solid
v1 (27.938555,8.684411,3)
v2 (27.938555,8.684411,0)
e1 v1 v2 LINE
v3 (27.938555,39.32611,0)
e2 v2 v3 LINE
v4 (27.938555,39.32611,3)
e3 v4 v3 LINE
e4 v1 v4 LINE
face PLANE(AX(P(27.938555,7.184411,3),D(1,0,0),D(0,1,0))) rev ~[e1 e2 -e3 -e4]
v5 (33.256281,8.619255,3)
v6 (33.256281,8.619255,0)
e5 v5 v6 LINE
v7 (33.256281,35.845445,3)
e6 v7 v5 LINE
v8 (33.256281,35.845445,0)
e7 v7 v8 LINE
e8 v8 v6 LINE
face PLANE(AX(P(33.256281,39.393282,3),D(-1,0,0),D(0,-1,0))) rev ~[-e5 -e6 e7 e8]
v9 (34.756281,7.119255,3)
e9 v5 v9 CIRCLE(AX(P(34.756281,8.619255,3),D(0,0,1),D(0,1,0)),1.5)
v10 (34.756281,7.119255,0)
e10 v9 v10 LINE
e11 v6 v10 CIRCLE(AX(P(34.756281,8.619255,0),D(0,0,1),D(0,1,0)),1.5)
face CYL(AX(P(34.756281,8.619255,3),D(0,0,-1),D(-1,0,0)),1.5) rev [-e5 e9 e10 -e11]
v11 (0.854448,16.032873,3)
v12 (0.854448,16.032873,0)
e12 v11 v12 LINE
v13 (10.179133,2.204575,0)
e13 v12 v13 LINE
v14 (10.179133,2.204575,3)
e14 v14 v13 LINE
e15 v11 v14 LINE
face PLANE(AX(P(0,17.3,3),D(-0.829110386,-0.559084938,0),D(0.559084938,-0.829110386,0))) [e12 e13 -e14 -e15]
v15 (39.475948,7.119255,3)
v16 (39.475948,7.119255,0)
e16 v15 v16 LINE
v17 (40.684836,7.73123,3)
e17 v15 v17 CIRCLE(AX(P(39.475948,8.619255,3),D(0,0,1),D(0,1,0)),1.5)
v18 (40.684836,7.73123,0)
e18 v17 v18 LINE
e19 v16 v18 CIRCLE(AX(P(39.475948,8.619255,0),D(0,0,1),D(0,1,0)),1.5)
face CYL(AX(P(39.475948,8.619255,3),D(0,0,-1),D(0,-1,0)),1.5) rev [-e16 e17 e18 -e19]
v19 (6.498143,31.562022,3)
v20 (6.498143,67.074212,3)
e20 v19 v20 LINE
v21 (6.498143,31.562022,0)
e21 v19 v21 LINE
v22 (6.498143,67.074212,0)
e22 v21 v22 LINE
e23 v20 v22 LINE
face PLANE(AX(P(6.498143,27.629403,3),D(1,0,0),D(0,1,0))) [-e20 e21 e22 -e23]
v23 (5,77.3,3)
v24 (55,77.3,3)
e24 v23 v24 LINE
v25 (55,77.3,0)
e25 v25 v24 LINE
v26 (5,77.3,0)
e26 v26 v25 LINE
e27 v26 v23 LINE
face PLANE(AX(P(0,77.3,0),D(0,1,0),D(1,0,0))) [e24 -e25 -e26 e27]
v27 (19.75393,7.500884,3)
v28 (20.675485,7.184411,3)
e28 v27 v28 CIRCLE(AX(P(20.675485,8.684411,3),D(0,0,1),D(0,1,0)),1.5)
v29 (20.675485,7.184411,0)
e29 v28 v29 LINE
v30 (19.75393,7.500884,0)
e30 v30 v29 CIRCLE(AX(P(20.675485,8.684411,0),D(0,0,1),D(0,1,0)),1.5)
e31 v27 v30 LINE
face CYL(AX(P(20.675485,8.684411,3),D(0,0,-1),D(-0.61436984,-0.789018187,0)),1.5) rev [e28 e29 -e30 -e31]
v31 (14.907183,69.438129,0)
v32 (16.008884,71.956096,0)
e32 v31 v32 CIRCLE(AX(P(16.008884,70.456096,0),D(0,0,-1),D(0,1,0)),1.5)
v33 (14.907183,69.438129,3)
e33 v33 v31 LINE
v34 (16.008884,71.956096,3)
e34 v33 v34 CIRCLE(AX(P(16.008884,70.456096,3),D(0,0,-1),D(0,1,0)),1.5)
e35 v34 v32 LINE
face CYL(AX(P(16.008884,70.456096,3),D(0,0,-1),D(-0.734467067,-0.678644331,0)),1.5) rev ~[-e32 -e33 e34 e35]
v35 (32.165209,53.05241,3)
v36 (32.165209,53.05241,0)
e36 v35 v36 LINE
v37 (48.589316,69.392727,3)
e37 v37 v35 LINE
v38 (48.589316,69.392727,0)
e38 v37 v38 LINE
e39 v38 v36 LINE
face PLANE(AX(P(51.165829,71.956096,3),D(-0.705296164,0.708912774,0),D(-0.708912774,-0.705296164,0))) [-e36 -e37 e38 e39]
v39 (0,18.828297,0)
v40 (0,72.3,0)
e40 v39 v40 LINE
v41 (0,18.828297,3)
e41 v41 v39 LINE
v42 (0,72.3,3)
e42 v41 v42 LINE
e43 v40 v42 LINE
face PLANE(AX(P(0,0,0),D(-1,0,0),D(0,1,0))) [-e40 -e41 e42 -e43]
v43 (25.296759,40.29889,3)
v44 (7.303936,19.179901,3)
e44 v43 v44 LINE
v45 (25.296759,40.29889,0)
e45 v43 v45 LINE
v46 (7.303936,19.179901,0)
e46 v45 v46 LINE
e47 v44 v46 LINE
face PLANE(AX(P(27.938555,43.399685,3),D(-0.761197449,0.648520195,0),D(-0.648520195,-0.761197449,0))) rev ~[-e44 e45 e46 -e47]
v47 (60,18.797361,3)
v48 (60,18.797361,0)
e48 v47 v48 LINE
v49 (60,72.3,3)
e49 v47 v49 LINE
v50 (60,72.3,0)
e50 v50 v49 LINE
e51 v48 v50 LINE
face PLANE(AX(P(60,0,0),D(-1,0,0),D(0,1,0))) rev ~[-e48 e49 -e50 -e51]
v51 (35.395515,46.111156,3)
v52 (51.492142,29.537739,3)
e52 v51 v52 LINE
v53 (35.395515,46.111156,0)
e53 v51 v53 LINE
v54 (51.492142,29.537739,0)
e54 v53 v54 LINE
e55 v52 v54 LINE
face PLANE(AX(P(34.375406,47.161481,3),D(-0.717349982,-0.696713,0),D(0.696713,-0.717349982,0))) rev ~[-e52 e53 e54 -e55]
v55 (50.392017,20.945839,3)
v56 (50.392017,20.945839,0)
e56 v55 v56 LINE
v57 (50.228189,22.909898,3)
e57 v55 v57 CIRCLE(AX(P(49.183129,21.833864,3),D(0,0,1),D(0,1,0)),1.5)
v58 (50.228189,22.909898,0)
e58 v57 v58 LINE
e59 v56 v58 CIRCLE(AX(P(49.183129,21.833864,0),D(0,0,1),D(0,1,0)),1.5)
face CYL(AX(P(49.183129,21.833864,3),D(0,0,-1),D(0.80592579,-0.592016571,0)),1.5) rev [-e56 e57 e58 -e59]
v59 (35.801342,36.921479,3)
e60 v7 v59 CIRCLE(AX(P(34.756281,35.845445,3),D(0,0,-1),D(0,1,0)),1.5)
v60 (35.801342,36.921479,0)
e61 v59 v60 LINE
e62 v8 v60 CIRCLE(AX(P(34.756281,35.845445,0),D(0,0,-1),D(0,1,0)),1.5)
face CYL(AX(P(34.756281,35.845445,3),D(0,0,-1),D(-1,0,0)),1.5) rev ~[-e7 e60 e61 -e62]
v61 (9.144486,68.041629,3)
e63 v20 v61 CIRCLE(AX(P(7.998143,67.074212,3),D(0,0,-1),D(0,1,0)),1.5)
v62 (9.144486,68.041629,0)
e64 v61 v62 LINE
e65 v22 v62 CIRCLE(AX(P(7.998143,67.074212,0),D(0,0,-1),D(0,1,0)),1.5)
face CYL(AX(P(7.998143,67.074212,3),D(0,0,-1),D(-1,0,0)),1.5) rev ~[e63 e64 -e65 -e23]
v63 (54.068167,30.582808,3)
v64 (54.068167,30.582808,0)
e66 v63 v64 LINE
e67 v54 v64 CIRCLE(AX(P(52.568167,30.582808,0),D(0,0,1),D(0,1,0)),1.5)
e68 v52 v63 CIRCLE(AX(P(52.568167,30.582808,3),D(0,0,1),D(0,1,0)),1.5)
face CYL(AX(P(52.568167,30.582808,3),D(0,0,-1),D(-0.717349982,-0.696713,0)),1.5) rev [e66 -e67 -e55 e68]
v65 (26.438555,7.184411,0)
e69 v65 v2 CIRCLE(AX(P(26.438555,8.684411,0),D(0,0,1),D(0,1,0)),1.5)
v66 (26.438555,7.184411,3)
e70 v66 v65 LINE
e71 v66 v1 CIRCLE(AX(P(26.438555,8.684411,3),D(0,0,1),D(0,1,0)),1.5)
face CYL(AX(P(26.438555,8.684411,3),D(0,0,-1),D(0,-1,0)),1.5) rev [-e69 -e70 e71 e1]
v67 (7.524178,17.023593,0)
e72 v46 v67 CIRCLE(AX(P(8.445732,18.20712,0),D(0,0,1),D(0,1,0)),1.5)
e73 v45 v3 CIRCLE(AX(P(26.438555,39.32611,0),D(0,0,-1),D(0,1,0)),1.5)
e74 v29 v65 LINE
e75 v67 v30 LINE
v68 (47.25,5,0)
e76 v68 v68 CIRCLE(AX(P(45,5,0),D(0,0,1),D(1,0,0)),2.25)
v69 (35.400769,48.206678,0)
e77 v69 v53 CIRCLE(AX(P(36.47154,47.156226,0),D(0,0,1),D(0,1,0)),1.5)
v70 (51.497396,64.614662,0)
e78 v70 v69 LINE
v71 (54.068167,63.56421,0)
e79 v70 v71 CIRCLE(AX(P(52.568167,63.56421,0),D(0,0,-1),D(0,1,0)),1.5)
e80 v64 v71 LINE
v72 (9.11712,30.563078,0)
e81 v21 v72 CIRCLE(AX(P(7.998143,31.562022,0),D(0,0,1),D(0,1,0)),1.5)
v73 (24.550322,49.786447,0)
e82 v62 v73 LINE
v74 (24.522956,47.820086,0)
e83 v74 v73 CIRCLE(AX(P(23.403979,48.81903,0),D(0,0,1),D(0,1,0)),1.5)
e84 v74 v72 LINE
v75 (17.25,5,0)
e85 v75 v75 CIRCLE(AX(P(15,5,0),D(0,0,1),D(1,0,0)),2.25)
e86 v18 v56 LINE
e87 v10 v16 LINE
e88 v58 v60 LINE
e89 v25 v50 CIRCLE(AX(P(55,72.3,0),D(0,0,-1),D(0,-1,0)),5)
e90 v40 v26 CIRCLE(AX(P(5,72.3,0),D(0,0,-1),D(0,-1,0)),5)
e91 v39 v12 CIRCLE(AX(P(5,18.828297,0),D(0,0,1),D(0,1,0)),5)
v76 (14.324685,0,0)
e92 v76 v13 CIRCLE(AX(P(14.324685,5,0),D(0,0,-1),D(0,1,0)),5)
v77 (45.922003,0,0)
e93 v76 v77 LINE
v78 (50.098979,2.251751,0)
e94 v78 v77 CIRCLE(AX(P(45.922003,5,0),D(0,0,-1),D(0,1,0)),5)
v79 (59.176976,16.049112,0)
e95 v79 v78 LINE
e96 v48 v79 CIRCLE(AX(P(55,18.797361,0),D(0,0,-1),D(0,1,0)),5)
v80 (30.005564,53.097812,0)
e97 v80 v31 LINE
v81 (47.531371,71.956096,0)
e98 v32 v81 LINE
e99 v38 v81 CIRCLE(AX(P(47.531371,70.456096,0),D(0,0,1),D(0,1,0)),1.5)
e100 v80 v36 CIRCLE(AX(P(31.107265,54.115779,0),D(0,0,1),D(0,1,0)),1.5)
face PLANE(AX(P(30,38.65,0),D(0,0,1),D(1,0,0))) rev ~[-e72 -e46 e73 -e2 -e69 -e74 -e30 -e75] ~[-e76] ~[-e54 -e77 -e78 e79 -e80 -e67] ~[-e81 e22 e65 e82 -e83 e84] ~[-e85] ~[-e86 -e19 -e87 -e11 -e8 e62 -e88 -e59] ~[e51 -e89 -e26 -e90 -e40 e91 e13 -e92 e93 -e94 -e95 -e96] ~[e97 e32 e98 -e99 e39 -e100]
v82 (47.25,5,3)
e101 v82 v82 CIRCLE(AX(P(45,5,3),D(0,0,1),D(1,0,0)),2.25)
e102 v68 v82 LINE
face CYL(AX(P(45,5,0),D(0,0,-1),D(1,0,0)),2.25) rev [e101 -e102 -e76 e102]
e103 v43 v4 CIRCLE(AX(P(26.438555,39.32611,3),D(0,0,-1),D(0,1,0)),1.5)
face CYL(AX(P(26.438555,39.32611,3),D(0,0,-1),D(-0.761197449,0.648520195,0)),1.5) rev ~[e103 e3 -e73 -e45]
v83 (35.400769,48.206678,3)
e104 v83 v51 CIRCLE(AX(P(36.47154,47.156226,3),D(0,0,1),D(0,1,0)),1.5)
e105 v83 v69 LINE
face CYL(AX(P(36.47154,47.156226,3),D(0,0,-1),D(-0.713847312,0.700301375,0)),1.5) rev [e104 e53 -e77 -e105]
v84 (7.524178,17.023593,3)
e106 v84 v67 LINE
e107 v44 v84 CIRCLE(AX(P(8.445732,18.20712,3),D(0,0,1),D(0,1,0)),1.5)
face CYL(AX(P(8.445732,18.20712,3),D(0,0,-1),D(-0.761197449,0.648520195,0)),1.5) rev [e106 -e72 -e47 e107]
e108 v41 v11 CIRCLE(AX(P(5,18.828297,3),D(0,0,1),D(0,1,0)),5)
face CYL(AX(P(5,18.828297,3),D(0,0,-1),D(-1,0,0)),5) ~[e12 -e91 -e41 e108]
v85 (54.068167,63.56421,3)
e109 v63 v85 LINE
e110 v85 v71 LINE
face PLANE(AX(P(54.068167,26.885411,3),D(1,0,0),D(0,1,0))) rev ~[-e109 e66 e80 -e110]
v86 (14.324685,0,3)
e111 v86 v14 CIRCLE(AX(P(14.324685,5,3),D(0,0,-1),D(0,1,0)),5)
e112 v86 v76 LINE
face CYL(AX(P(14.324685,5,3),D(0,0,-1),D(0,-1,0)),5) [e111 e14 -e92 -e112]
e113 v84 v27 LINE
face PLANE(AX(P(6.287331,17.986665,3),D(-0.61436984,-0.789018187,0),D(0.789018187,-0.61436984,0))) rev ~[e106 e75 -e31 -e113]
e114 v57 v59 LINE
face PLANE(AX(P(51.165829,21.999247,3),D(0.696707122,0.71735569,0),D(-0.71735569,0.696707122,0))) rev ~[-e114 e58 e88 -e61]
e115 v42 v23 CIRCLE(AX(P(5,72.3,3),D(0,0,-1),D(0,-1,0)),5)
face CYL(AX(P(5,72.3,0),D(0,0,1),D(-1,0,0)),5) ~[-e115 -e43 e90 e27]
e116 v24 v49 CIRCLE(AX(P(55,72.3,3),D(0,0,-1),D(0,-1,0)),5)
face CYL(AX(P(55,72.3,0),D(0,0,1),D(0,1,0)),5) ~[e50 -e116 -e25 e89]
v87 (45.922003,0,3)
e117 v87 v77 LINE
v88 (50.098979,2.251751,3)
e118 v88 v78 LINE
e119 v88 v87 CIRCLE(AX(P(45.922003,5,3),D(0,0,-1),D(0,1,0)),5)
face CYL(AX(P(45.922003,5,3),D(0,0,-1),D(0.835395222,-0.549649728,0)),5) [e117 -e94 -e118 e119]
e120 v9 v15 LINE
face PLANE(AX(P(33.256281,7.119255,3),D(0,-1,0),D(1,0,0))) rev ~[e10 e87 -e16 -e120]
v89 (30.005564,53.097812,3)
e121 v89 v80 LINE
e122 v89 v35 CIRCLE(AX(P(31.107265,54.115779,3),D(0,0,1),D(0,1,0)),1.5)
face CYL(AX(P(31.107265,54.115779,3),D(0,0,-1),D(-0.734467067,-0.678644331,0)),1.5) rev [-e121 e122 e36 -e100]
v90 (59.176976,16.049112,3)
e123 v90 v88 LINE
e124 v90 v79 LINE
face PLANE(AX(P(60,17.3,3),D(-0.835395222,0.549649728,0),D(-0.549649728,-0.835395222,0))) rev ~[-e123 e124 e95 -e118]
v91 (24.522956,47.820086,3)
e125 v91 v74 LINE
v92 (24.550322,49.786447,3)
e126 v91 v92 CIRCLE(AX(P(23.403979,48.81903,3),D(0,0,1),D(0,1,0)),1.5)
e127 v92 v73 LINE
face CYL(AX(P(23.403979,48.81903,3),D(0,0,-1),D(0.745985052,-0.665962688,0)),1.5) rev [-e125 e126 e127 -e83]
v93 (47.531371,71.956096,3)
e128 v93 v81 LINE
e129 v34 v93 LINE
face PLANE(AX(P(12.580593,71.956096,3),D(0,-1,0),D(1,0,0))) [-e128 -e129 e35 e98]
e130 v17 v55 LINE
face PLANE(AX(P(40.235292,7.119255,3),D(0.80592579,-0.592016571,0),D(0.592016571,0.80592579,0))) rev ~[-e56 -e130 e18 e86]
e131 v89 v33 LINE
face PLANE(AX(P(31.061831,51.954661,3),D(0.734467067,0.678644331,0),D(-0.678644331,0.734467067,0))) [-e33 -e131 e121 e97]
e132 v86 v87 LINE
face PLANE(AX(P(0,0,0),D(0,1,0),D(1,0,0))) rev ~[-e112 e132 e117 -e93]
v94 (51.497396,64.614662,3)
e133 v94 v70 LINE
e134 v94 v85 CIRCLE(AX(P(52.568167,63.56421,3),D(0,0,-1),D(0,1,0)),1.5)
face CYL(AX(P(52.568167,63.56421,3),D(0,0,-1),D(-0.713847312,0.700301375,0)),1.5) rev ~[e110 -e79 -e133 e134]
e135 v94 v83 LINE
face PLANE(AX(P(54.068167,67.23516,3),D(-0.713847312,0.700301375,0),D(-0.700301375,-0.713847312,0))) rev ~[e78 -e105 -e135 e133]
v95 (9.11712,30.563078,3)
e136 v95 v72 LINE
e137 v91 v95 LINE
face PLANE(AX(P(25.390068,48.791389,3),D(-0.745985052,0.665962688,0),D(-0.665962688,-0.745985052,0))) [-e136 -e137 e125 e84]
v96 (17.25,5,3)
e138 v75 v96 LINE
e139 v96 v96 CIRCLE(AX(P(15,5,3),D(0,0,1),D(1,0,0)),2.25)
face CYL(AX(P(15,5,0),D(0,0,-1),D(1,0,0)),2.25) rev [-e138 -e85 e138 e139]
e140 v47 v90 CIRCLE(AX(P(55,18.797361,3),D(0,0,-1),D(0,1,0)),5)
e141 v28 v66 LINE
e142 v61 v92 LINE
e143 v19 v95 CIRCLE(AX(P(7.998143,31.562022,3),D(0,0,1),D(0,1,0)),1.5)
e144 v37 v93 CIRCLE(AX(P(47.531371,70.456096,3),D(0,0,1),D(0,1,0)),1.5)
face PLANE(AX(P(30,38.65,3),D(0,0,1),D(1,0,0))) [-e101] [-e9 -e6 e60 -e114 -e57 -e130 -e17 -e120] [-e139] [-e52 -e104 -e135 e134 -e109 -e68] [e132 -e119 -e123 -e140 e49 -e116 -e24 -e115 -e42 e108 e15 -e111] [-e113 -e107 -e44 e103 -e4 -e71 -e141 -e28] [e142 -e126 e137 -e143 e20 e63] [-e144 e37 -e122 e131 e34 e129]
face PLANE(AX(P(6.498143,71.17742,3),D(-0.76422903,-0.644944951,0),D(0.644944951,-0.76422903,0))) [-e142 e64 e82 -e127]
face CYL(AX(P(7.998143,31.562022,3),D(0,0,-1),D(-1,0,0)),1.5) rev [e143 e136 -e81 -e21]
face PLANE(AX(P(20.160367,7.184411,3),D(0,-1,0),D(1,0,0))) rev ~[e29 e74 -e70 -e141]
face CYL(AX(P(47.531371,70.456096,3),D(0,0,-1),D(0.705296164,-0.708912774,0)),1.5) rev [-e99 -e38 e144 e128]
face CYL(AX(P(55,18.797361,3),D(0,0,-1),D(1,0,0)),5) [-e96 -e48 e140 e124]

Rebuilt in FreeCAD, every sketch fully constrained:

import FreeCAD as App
import Part
import Sketcher


def edges_at(feature, points):
    """Names of the edges that pass closest to the given points."""
    edges = feature.Shape.Edges
    near = lambda p: min(range(len(edges)), key=lambda i: edges[i].distToShape(Part.Vertex(*p))[0])
    return sorted({f"Edge{near(p) + 1}" for p in points})


def add_polygon(sketch, points):
    """Adds a closed chain of lines whose ends are joined by coincident constraints."""
    first, n = sketch.GeometryCount, len(points)
    for a, b in zip(points, points[1:] + points[:1]):
        sketch.addGeometry(Part.LineSegment(App.Vector(*a, 0), App.Vector(*b, 0)), False)
    for i in range(n):
        sketch.addConstraint(Sketcher.Constraint("Coincident", first + i, 2, first + (i + 1) % n, 1))

doc = App.newDocument("Part")
params = doc.addObject("Spreadsheet::Sheet", "Params")
for row, (alias, value) in enumerate([
    ("sketch1_diameter", "4.5 mm"),
    ("sketch1_width", "60 mm"),
    ("sketch1_height", "77.3 mm"),
    ("pad1_length", "3 mm"),
    ("sketch2_height", "17.3 mm"),
    ("fillet_radius", "1.5 mm"),
    ("fillet2_radius", "5 mm"),
], start=1):
    params.set(f"A{row}", alias)
    params.set(f"B{row}", "=" + value)
    params.setAlias(f"B{row}", alias)

body = doc.addObject("PartDesign::Body", "Body")

sketch1 = body.newObject("Sketcher::SketchObject", "Sketch")
sketch1.AttachmentSupport = (doc.getObject("XY_Plane"), [""])
sketch1.MapMode = "FlatFace"
add_polygon(sketch1, [(0, 77.3), (0, 0), (60, 0), (60, 77.3)])
sketch1.addGeometry(Part.Circle(App.Vector(15, 5, 0), App.Vector(0, 0, 1), 2.25), False)
sketch1.addGeometry(Part.Circle(App.Vector(45, 5, 0), App.Vector(0, 0, 1), 2.25), False)
sketch1.addConstraint([
    Sketcher.Constraint("Vertical", 0),
    Sketcher.Constraint("Horizontal", 1),
    Sketcher.Constraint("Vertical", 2),
    Sketcher.Constraint("Horizontal", 3),
    Sketcher.Constraint("Coincident", 0, 2, -1, 1),
    Sketcher.Constraint("Equal", 4, 5),
    Sketcher.Constraint("Horizontal", 4, 3, 5, 3),
    Sketcher.Constraint("Diameter", 4, 4.5),
    Sketcher.Constraint("DistanceX", 1, 1, 1, 2, 60.0),
    Sketcher.Constraint("DistanceY", 0, 2, 0, 1, 77.3),
    Sketcher.Constraint("DistanceX", -1, 1, 4, 3, 15.0),
    Sketcher.Constraint("DistanceY", -1, 1, 4, 3, 5.0),
    Sketcher.Constraint("DistanceX", -1, 1, 5, 3, 45.0),
])
sketch1.setExpression("Constraints[11]", "Params.sketch1_diameter")
sketch1.setExpression("Constraints[12]", "Params.sketch1_width")
sketch1.setExpression("Constraints[13]", "Params.sketch1_height")
pad1 = body.newObject("PartDesign::Pad", "Pad")
pad1.Profile = sketch1
pad1.setExpression("Length", "Params.pad1_length")

sketch2 = body.newObject("Sketcher::SketchObject", "Sketch001")
sketch2.AttachmentSupport = (doc.getObject("XY_Plane"), [""])
sketch2.MapMode = "FlatFace"
sketch2.AttachmentOffset = App.Placement(App.Vector(0, 0, 3), App.Rotation())
add_polygon(sketch2, [(25.390068, 48.791389), (6.498143, 71.17742), (6.498143, 27.629403)])
add_polygon(sketch2, [(51.165829, 71.956096), (12.580593, 71.956096), (31.061831, 51.954661)])
add_polygon(sketch2, [(54.068167, 67.23516), (34.375406, 47.161481), (54.068167, 26.885411)])
add_polygon(sketch2, [(27.938555, 43.399685), (6.287331, 17.986665), (20.160367, 7.184411), (27.938555, 7.184411)])
add_polygon(sketch2, [(33.256281, 39.393282), (33.256281, 7.119255), (40.235292, 7.119255), (51.165829, 21.999247)])
add_polygon(sketch2, [(11.66572, 0), (0, 17.3), (0, 0)])
add_polygon(sketch2, [(60, 17.3), (48.617435, 0), (60, 0)])
sketch2.addConstraint([
    Sketcher.Constraint("Vertical", 1),
    Sketcher.Constraint("Horizontal", 3),
    Sketcher.Constraint("Vertical", 8),
    Sketcher.Constraint("Horizontal", 11),
    Sketcher.Constraint("Vertical", 12),
    Sketcher.Constraint("Vertical", 13),
    Sketcher.Constraint("Horizontal", 14),
    Sketcher.Constraint("Vertical", 18),
    Sketcher.Constraint("Horizontal", 19),
    Sketcher.Constraint("Horizontal", 21),
    Sketcher.Constraint("Vertical", 22),
    Sketcher.Constraint("Coincident", 18, 2, -1, 1),
    Sketcher.Constraint("PointOnObject", 20, 2, -1),
    Sketcher.Constraint("Horizontal", 17, 2, 22, 2),
    Sketcher.Constraint("Vertical", 5, 2, 15, 2),
    Sketcher.Constraint("DistanceY", 18, 2, 18, 1, 17.3),
    Sketcher.Constraint("DistanceX", -1, 1, 21, 2, 60.0),
    Sketcher.Constraint("DistanceX", 4, 2, 5, 2, 20.103998),
    Sketcher.Constraint("DistanceY", 10, 2, 7, 2, 19.701),
    Sketcher.Constraint("DistanceX", 11, 1, 11, 2, 7.778189),
    Sketcher.Constraint("DistanceX", 14, 1, 14, 2, 6.979011),
    Sketcher.Constraint("DistanceX", 19, 1, 19, 2, 11.66572),
    Sketcher.Constraint("DistanceY", 8, 1, 8, 2, 40.349749),
    Sketcher.Constraint("DistanceX", 2, 2, 7, 2, 28.6781),
    Sketcher.Constraint("DistanceY", 4, 2, 8, 2, 15.280499),
    Sketcher.Constraint("DistanceX", 9, 2, 4, 2, 24.7745),
    Sketcher.Constraint("DistanceX", 10, 2, 7, 2, 33.9078),
    Sketcher.Constraint("DistanceY", 16, 2, 6, 2, 7.7682),
    Sketcher.Constraint("Distance", 6, 28.120409),
    Sketcher.Constraint("Distance", 7, 28.265241),
    Sketcher.Constraint("Distance", 15, 18.463229),
    Sketcher.Constraint("Distance", 20, 20.708761),
    Sketcher.Constraint("DistanceX", 3, 2, 3, 1, 38.585236),
    Sketcher.Constraint("DistanceY", 1, 2, 1, 1, 43.548017),
    Sketcher.Constraint("DistanceY", 12, 1, 12, 2, 36.215274),
    Sketcher.Constraint("DistanceY", 13, 2, 13, 1, 32.274027),
    Sketcher.Constraint("DistanceY", -1, 1, 0, 2, 71.17742),
    Sketcher.Constraint("DistanceY", -1, 1, 2, 2, 48.791389),
    Sketcher.Constraint("DistanceX", -1, 1, 4, 2, 31.061831),
    Sketcher.Constraint("DistanceY", -1, 1, 4, 2, 51.954661),
    Sketcher.Constraint("DistanceX", -1, 1, 13, 2, 33.256281),
    Sketcher.Constraint("DistanceX", 0, 2, 3, 2, 6.08245),
    Sketcher.Constraint("DistanceX", 2, 2, 5, 2, 25.775762),
    Sketcher.Constraint("DistanceY", 13, 2, 9, 2, 10.86741),
    Sketcher.Constraint("Distance", 4, 27.232583),
])
sketch2.setExpression("Constraints[38]", "Params.sketch2_height")
pocket1 = body.newObject("PartDesign::Pocket", "Pocket")
pocket1.Profile = sketch2
pocket1.Type = "ThroughAll"
doc.recompute()

fillet = body.newObject("PartDesign::Fillet", "Fillet")
fillet.Base = (pocket1, edges_at(pocket1, [
    (6.498, 27.629, 1.5),
    (6.498, 71.177, 1.5),
    (25.39, 48.791, 1.5),
    (31.062, 51.955, 1.5),
    (12.581, 71.956, 1.5),
    (51.166, 71.956, 1.5),
    (27.939, 43.4, 1.5),
    (27.939, 7.184, 1.5),
    (20.16, 7.184, 1.5),
    (6.287, 17.987, 1.5),
    (40.235, 7.119, 1.5),
    (33.256, 7.119, 1.5),
    (33.256, 39.393, 1.5),
    (51.166, 21.999, 1.5),
    (54.068, 67.235, 1.5),
    (54.068, 26.885, 1.5),
    (34.375, 47.161, 1.5),
]))
fillet.setExpression("Radius", "Params.fillet_radius")
doc.recompute()

fillet2 = body.newObject("PartDesign::Fillet", "Fillet001")
fillet2.Base = (fillet, edges_at(fillet, [
    (0, 17.3, 1.5),
    (11.666, 0, 1.5),
    (0, 77.3, 1.5),
    (60, 17.3, 1.5),
    (60, 77.3, 1.5),
    (48.617, 0, 1.5),
]))
fillet2.setExpression("Radius", "Params.fillet2_radius")

doc.recompute()
